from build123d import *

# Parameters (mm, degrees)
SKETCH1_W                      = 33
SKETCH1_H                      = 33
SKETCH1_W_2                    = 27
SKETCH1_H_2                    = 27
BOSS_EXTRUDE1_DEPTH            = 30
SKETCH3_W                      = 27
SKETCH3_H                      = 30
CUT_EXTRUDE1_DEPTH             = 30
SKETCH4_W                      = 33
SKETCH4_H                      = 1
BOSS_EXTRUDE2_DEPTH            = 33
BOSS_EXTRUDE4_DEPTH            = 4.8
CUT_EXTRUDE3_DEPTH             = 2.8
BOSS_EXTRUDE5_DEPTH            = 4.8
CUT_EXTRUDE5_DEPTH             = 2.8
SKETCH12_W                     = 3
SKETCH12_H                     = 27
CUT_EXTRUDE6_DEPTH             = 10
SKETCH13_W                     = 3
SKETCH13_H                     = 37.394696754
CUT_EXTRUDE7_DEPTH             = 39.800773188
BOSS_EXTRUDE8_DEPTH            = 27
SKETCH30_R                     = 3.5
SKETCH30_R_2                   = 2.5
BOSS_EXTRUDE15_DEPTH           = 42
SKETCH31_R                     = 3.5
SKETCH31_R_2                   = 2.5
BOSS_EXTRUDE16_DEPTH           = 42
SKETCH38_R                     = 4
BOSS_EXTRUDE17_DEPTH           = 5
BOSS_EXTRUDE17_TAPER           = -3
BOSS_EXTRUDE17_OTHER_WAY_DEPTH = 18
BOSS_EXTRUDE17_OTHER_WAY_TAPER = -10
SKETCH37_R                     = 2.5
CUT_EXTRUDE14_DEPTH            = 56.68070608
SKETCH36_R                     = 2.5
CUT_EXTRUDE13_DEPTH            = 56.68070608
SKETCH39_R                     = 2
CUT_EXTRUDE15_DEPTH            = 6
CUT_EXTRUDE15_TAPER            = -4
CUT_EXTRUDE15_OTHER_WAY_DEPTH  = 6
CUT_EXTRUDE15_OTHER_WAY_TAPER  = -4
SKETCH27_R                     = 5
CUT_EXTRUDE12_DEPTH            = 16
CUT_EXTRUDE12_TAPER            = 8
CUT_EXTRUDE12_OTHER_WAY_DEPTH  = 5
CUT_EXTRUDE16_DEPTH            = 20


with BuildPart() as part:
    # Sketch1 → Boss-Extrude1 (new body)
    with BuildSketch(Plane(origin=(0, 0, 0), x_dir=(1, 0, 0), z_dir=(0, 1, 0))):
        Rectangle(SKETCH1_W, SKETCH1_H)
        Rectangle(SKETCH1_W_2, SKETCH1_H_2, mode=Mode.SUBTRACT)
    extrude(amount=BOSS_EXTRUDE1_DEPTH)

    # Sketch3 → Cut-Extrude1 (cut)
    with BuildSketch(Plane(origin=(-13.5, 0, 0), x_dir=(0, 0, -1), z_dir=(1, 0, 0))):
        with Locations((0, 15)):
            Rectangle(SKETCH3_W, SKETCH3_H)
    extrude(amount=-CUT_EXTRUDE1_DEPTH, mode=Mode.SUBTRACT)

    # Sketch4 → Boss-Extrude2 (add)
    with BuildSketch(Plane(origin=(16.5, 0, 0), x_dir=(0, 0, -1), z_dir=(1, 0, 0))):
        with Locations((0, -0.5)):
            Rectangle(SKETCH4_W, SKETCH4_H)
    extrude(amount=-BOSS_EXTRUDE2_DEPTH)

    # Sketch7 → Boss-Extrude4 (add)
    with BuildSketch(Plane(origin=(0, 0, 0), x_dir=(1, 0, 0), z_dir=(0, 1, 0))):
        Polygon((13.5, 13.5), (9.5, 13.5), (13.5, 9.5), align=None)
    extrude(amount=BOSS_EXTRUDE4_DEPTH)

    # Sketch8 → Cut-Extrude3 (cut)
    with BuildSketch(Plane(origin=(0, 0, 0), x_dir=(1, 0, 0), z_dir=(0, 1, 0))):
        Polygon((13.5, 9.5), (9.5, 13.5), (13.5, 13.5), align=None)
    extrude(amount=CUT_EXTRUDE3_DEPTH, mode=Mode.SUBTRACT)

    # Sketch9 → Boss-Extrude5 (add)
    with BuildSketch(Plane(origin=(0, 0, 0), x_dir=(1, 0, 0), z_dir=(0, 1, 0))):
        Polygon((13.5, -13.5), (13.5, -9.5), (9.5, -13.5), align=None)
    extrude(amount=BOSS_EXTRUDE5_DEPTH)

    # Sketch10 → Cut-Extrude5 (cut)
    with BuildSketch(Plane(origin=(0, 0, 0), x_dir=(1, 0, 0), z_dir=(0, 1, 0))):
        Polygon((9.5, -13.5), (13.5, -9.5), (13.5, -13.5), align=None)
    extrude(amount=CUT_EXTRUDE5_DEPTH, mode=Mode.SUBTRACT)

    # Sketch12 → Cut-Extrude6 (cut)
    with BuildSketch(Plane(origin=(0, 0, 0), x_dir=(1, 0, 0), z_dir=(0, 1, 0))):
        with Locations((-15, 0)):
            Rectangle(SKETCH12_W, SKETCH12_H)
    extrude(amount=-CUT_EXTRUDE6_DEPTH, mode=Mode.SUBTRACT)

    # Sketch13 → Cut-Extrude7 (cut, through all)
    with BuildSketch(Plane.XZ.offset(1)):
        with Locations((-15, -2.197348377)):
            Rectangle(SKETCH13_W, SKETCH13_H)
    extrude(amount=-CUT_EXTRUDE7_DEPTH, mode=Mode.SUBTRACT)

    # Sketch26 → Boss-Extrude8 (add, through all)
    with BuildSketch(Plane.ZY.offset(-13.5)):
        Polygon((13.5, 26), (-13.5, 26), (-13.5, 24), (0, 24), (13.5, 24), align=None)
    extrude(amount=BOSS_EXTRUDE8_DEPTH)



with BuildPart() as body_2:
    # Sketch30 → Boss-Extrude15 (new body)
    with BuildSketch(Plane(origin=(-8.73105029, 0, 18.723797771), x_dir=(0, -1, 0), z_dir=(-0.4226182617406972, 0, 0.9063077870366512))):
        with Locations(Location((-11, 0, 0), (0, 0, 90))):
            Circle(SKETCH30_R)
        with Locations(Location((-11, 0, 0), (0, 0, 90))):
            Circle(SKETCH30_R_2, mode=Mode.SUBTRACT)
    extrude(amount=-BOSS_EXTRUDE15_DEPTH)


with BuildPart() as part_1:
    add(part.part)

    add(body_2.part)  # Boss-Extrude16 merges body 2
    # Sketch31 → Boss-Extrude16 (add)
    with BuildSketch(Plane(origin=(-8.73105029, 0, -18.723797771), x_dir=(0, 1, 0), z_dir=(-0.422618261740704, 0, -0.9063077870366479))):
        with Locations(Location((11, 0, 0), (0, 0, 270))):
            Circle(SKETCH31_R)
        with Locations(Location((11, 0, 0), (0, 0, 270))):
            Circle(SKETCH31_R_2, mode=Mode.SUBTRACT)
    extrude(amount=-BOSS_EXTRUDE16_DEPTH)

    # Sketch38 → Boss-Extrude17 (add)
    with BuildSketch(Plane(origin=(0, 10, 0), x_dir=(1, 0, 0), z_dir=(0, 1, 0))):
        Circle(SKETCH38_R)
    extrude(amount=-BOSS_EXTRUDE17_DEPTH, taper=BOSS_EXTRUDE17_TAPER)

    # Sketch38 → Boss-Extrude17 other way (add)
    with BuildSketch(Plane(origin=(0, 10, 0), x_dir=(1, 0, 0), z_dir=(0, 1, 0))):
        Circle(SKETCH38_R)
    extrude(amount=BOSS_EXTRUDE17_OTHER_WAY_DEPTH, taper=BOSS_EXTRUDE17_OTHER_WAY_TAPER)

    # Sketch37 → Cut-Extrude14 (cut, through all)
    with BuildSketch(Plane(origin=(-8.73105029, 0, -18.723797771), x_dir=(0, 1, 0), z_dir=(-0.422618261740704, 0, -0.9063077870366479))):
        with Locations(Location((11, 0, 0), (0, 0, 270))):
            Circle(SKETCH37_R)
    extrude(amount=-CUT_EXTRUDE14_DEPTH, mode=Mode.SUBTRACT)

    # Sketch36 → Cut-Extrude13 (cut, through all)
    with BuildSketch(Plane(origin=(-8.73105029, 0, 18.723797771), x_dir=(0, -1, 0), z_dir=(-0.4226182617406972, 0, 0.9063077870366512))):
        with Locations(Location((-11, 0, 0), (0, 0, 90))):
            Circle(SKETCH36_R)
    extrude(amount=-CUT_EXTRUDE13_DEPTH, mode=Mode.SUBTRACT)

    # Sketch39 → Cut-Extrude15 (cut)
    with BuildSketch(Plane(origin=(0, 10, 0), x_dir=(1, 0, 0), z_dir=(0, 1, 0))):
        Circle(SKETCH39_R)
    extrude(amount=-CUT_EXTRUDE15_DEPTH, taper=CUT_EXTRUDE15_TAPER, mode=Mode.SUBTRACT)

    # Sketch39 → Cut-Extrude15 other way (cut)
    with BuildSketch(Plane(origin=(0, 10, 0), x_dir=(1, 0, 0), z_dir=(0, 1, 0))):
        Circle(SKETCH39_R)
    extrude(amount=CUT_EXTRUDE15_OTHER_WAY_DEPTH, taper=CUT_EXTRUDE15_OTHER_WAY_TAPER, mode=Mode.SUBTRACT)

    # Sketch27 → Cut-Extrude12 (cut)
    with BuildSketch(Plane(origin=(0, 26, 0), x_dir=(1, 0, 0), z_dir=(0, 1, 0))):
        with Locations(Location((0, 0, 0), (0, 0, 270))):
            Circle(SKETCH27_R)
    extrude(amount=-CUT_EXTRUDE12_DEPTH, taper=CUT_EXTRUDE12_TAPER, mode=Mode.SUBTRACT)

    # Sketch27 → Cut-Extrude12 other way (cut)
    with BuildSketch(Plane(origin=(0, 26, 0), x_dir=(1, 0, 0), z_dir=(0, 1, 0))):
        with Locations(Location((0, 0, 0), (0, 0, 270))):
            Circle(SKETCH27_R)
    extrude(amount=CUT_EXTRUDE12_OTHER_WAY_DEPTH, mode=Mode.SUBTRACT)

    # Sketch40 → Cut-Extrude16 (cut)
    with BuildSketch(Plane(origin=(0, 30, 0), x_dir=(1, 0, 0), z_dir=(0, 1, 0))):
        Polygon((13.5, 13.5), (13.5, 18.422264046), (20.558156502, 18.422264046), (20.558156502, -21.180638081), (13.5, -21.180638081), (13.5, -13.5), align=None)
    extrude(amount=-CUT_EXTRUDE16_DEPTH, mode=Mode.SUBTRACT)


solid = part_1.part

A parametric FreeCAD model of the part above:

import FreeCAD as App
import Part
import Sketcher
from FreeCAD import Vector
Q = App.Units.Quantity


def add_polygon(sketch, points):
    """Adds a closed chain of lines whose ends are joined by coincident constraints."""
    first, n = sketch.GeometryCount, len(points)
    for a, b in zip(points, points[1:] + points[:1]):
        sketch.addGeometry(Part.LineSegment(App.Vector(*a, 0), App.Vector(*b, 0)), False)
    for i in range(n):
        sketch.addConstraint(Sketcher.Constraint("Coincident", first + i, 2, first + (i + 1) % n, 1))

doc = App.newDocument("Part")
body = doc.addObject("PartDesign::Body", "Body")

# Sketch on XZ plane
sketch1 = body.newObject("Sketcher::SketchObject", "Sketch")
sketch1.AttachmentSupport = (doc.getObject("XZ_Plane"), [""])
sketch1.MapMode = "FlatFace"
add_polygon(sketch1, [(-16, -16), (-16, 16), (16, 16), (16, -16)])  # lines 0-3
add_polygon(sketch1, [(14, 14), (-14, 14), (-14, -14), (14, -14)])  # lines 4-7
sketch1.addConstraint(Sketcher.Constraint("Vertical", 0))
sketch1.addConstraint(Sketcher.Constraint("Horizontal", 1))
sketch1.addConstraint(Sketcher.Constraint("Vertical", 2))
sketch1.addConstraint(Sketcher.Constraint("Horizontal", 3))
sketch1.addConstraint(Sketcher.Constraint("Horizontal", 4))
sketch1.addConstraint(Sketcher.Constraint("Vertical", 5))
sketch1.addConstraint(Sketcher.Constraint("Horizontal", 6))
sketch1.addConstraint(Sketcher.Constraint("Vertical", 7))
sketch1.addConstraint(Sketcher.Constraint("Symmetric", 0, 2, 2, 2, -1, 1))
sketch1.addConstraint(Sketcher.Constraint("Symmetric", 4, 2, 6, 2, -1, 1))
sketch1.addConstraint(Sketcher.Constraint("Equal", 3, 0))
sketch1.addConstraint(Sketcher.Constraint("Equal", 6, 5))
sketch1.addConstraint(Sketcher.Constraint("DistanceX", 1, 1, 1, 2, Q("33 mm")))
sketch1.addConstraint(Sketcher.Constraint("DistanceX", 4, 2, 4, 1, Q("27 mm")))
pad1 = body.newObject("PartDesign::Pad", "Pad")
pad1.Profile = sketch1
pad1.Length = 30
pad1.Reversed = True

# Sketch on YZ plane
sketch2 = body.newObject("Sketcher::SketchObject", "Sketch001")
sketch2.AttachmentSupport = (doc.getObject("YZ_Plane"), [""])
sketch2.MapMode = "FlatFace"
sketch2.AttachmentOffset = App.Placement(Vector(0, 0, -13.5), App.Rotation())
add_polygon(sketch2, [(30, 14), (0, 14), (0, -14), (30, -14)])  # lines 0-3
sketch2.addConstraint(Sketcher.Constraint("Horizontal", 0))
sketch2.addConstraint(Sketcher.Constraint("Vertical", 1))
sketch2.addConstraint(Sketcher.Constraint("Horizontal", 2))
sketch2.addConstraint(Sketcher.Constraint("Vertical", 3))
sketch2.addConstraint(Sketcher.Constraint("Symmetric", 0, 2, 1, 2, -1, 1))
sketch2.addConstraint(Sketcher.Constraint("DistanceX", 0, 2, 0, 1, Q("30 mm")))
sketch2.addConstraint(Sketcher.Constraint("DistanceY", 1, 2, 1, 1, Q("27 mm")))
pocket1 = body.newObject("PartDesign::Pocket", "Pocket")
pocket1.Profile = sketch2
pocket1.Length = 30

# Sketch on YZ plane
sketch3 = body.newObject("Sketcher::SketchObject", "Sketch002")
sketch3.AttachmentSupport = (doc.getObject("YZ_Plane"), [""])
sketch3.MapMode = "FlatFace"
sketch3.AttachmentOffset = App.Placement(Vector(0, 0, 16.5), App.Rotation())
add_polygon(sketch3, [(0, 16.5), (-1, 16.5), (-1, -16.5), (0, -16.5)])  # lines 0-3
sketch3.addConstraint(Sketcher.Constraint("Horizontal", 0))
sketch3.addConstraint(Sketcher.Constraint("Vertical", 1))
sketch3.addConstraint(Sketcher.Constraint("Horizontal", 2))
sketch3.addConstraint(Sketcher.Constraint("Vertical", 3))
sketch3.addConstraint(Sketcher.Constraint("Symmetric", 2, 2, 3, 2, -1, 1))
sketch3.addConstraint(Sketcher.Constraint("DistanceX", 0, 2, 0, 1, Q("1 mm")))
sketch3.addConstraint(Sketcher.Constraint("DistanceY", 1, 2, 1, 1, Q("33 mm")))
pad2 = body.newObject("PartDesign::Pad", "Pad001")
pad2.Profile = sketch3
pad2.Length = 33
pad2.Reversed = True

# Sketch on XZ plane
sketch4 = body.newObject("Sketcher::SketchObject", "Sketch003")
sketch4.AttachmentSupport = (doc.getObject("XZ_Plane"), [""])
sketch4.MapMode = "FlatFace"
add_polygon(sketch4, [(13.5, -13.5), (9.5, -13.5), (13.5, -9.5)])  # lines 0-2
sketch4.addConstraint(Sketcher.Constraint("Horizontal", 0))
sketch4.addConstraint(Sketcher.Constraint("Vertical", 2))
sketch4.addConstraint(Sketcher.Constraint("Equal", 0, 2))
sketch4.addConstraint(Sketcher.Constraint("DistanceX", 0, 2, 0, 1, Q("4 mm")))
sketch4.addConstraint(Sketcher.Constraint("DistanceX", -1, 1, 0, 2, Q("9.5 mm")))
sketch4.addConstraint(Sketcher.Constraint("DistanceY", 0, 2, -1, 1, Q("13.5 mm")))
pad3 = body.newObject("PartDesign::Pad", "Pad002")
pad3.Profile = sketch4
pad3.Length = 4.8
pad3.Reversed = True

# Sketch on XZ plane
sketch5 = body.newObject("Sketcher::SketchObject", "Sketch004")
sketch5.AttachmentSupport = (doc.getObject("XZ_Plane"), [""])
sketch5.MapMode = "FlatFace"
add_polygon(sketch5, [(9.5, -13.5), (13.5, -9.5), (13.5, -13.5)])  # lines 0-2
sketch5.addConstraint(Sketcher.Constraint("Vertical", 1))
sketch5.addConstraint(Sketcher.Constraint("Horizontal", 2))
sketch5.addConstraint(Sketcher.Constraint("Equal", 2, 1))
sketch5.addConstraint(Sketcher.Constraint("DistanceX", 2, 2, 2, 1, Q("4 mm")))
sketch5.addConstraint(Sketcher.Constraint("DistanceX", -1, 1, 0, 2, Q("13.5 mm")))
sketch5.addConstraint(Sketcher.Constraint("DistanceY", 0, 2, -1, 1, Q("9.5 mm")))
pocket2 = body.newObject("PartDesign::Pocket", "Pocket001")
pocket2.Profile = sketch5
pocket2.Length = 2.8

# Sketch on XZ plane
sketch6 = body.newObject("Sketcher::SketchObject", "Sketch005")
sketch6.AttachmentSupport = (doc.getObject("XZ_Plane"), [""])
sketch6.MapMode = "FlatFace"
add_polygon(sketch6, [(13.5, 13.5), (13.5, 9.5), (9.5, 13.5)])  # lines 0-2
sketch6.addConstraint(Sketcher.Constraint("Vertical", 0))
sketch6.addConstraint(Sketcher.Constraint("Horizontal", 2))
sketch6.addConstraint(Sketcher.Constraint("Equal", 2, 0))
sketch6.addConstraint(Sketcher.Constraint("DistanceX", 2, 1, 2, 2, Q("4 mm")))
sketch6.addConstraint(Sketcher.Constraint("DistanceX", -1, 1, 0, 2, Q("13.5 mm")))
sketch6.addConstraint(Sketcher.Constraint("DistanceY", -1, 1, 0, 2, Q("9.5 mm")))
pad4 = body.newObject("PartDesign::Pad", "Pad003")
pad4.Profile = sketch6
pad4.Length = 4.8
pad4.Reversed = True

# Sketch on XZ plane
sketch7 = body.newObject("Sketcher::SketchObject", "Sketch006")
sketch7.AttachmentSupport = (doc.getObject("XZ_Plane"), [""])
sketch7.MapMode = "FlatFace"
add_polygon(sketch7, [(13.5, 9.5), (9.5, 13.5), (13.5, 13.5)])  # lines 0-2
sketch7.addConstraint(Sketcher.Constraint("Horizontal", 1))
sketch7.addConstraint(Sketcher.Constraint("Vertical", 2))
sketch7.addConstraint(Sketcher.Constraint("Equal", 1, 2))
sketch7.addConstraint(Sketcher.Constraint("DistanceX", 1, 1, 1, 2, Q("4 mm")))
sketch7.addConstraint(Sketcher.Constraint("DistanceX", -1, 1, 0, 2, Q("9.5 mm")))
sketch7.addConstraint(Sketcher.Constraint("DistanceY", -1, 1, 0, 2, Q("13.5 mm")))
pocket3 = body.newObject("PartDesign::Pocket", "Pocket002")
pocket3.Profile = sketch7
pocket3.Length = 2.8

# Sketch on XZ plane
sketch8 = body.newObject("Sketcher::SketchObject", "Sketch007")
sketch8.AttachmentSupport = (doc.getObject("XZ_Plane"), [""])
sketch8.MapMode = "FlatFace"
add_polygon(sketch8, [(-16.5, -13.5), (-16.5, 13.5), (-13.5, 13.5), (-13.5, -13.5)])  # lines 0-3
sketch8.addConstraint(Sketcher.Constraint("Vertical", 0))
sketch8.addConstraint(Sketcher.Constraint("Horizontal", 1))
sketch8.addConstraint(Sketcher.Constraint("Vertical", 2))
sketch8.addConstraint(Sketcher.Constraint("Horizontal", 3))
sketch8.addConstraint(Sketcher.Constraint("DistanceX", 1, 1, 1, 2, Q("3 mm")))
sketch8.addConstraint(Sketcher.Constraint("DistanceY", 0, 1, 0, 2, Q("27 mm")))
sketch8.addConstraint(Sketcher.Constraint("DistanceX", 0, 2, -1, 1, Q("16.5 mm")))
sketch8.addConstraint(Sketcher.Constraint("DistanceY", -1, 1, 0, 2, Q("13.5 mm")))
pocket4 = body.newObject("PartDesign::Pocket", "Pocket003")
pocket4.Profile = sketch8
pocket4.Length = 10
pocket4.Reversed = True

# Sketch on XZ plane
sketch9 = body.newObject("Sketcher::SketchObject", "Sketch008")
sketch9.AttachmentSupport = (doc.getObject("XZ_Plane"), [""])
sketch9.MapMode = "FlatFace"
sketch9.AttachmentOffset = App.Placement(Vector(0, 0, 1), App.Rotation())
add_polygon(sketch9, [(-16.5, 16.5), (-16.5, -20.9), (-13.5, -20.9), (-13.5, 16.5)])  # lines 0-3
sketch9.addConstraint(Sketcher.Constraint("Vertical", 0))
sketch9.addConstraint(Sketcher.Constraint("Horizontal", 1))
sketch9.addConstraint(Sketcher.Constraint("Vertical", 2))
sketch9.addConstraint(Sketcher.Constraint("Horizontal", 3))
sketch9.addConstraint(Sketcher.Constraint("DistanceX", 1, 1, 1, 2, Q("3 mm")))
sketch9.addConstraint(Sketcher.Constraint("DistanceX", 0, 2, -1, 1, Q("16.5 mm")))
sketch9.addConstraint(Sketcher.Constraint("DistanceY", -1, 1, 2, 2, Q("16.5 mm")))
sketch9.addConstraint(Sketcher.Constraint("DistanceY", 0, 2, 0, 1, Q("37.394697 mm")))
pocket5 = body.newObject("PartDesign::Pocket", "Pocket004")
pocket5.Profile = sketch9
pocket5.Type = "ThroughAll"

# Sketch on YZ plane
sketch10 = body.newObject("Sketcher::SketchObject", "Sketch009")
sketch10.AttachmentSupport = (doc.getObject("YZ_Plane"), [""])
sketch10.MapMode = "FlatFace"
sketch10.AttachmentOffset = App.Placement(Vector(0, 0, 13.5), App.Rotation())
add_polygon(sketch10, [(26, 13.5), (26, -13.5), (24, -13.5), (24, 13.5)])  # lines 0-3
sketch10.addConstraint(Sketcher.Constraint("Vertical", 0))
sketch10.addConstraint(Sketcher.Constraint("Horizontal", 1))
sketch10.addConstraint(Sketcher.Constraint("Vertical", 2))
sketch10.addConstraint(Sketcher.Constraint("Horizontal", 3))
sketch10.addConstraint(Sketcher.Constraint("DistanceX", 1, 2, 1, 1, Q("2 mm")))
sketch10.addConstraint(Sketcher.Constraint("DistanceY", 0, 2, 0, 1, Q("27 mm")))
sketch10.addConstraint(Sketcher.Constraint("DistanceX", -1, 1, 0, 2, Q("26 mm")))
sketch10.addConstraint(Sketcher.Constraint("DistanceY", 0, 2, -1, 1, Q("13.5 mm")))
pad5 = body.newObject("PartDesign::Pad", "Pad004")
pad5.Profile = sketch10
pad5.Length = 27
pad5.Reversed = True
body2 = doc.addObject("PartDesign::Body", "Body001")

# Sketch on an angled plane
sketch11 = body2.newObject("Sketcher::SketchObject", "Sketch010")
sketch11.Placement = App.Placement(Vector(-8.73105, 0, 18.723798), App.Rotation(Vector(0, -1, 0), Vector(0.906307787, 0, 0.422618262), Vector(-0.422618262, 0, 0.906307787), "ZXY"))
sketch11.addGeometry(Part.Circle(Vector(-11, 0, 0), Vector(0, 0, 1), 3.5), False)
sketch11.addGeometry(Part.Circle(Vector(-11, 0, 0), Vector(0, 0, 1), 2.5), False)
sketch11.addConstraint(Sketcher.Constraint("Coincident", 1, 3, 0, 3))
sketch11.addConstraint(Sketcher.Constraint("PointOnObject", 0, 3, -1))
sketch11.addConstraint(Sketcher.Constraint("Diameter", 0, Q("7 mm")))
sketch11.addConstraint(Sketcher.Constraint("Diameter", 1, Q("5 mm")))
sketch11.addConstraint(Sketcher.Constraint("DistanceX", 0, 3, -1, 1, Q("11 mm")))
pad6 = body2.newObject("PartDesign::Pad", "Pad005")
pad6.Profile = sketch11
pad6.Length = 42
pad6.Reversed = True
doc.recompute()

boolean = body.newObject("PartDesign::Boolean", "Boolean")
boolean.Type = "Fuse"
boolean.addObjects([body2])

# Sketch on an angled plane
sketch12 = body.newObject("Sketcher::SketchObject", "Sketch011")
sketch12.Placement = App.Placement(Vector(-8.73105, 0, -18.723798), App.Rotation(Vector(0, 1, 0), Vector(0.906307787, 0, -0.422618262), Vector(-0.422618262, 0, -0.906307787), "ZXY"))
sketch12.addGeometry(Part.Circle(Vector(11, 0, 0), Vector(0, 0, 1), 3.5), False)
sketch12.addGeometry(Part.Circle(Vector(11, 0, 0), Vector(0, 0, 1), 2.5), False)
sketch12.addConstraint(Sketcher.Constraint("Coincident", 1, 3, 0, 3))
sketch12.addConstraint(Sketcher.Constraint("PointOnObject", 0, 3, -1))
sketch12.addConstraint(Sketcher.Constraint("Diameter", 0, Q("7 mm")))
sketch12.addConstraint(Sketcher.Constraint("Diameter", 1, Q("5 mm")))
sketch12.addConstraint(Sketcher.Constraint("DistanceX", -1, 1, 0, 3, Q("11 mm")))
pad7 = body.newObject("PartDesign::Pad", "Pad006")
pad7.Profile = sketch12
pad7.Length = 42
pad7.Reversed = True

# Sketch on XZ plane
sketch13 = body.newObject("Sketcher::SketchObject", "Sketch012")
sketch13.AttachmentSupport = (doc.getObject("XZ_Plane"), [""])
sketch13.MapMode = "FlatFace"
sketch13.AttachmentOffset = App.Placement(Vector(0, 0, -10), App.Rotation())
sketch13.addGeometry(Part.Circle(Vector(0, 0, 0), Vector(0, 0, 1), 4), False)
sketch13.addConstraint(Sketcher.Constraint("Coincident", 0, 3, -1, 1))
sketch13.addConstraint(Sketcher.Constraint("Diameter", 0, Q("8 mm")))
pad8 = body.newObject("PartDesign::Pad", "Pad007")
pad8.Profile = sketch13
pad8.Length = 5
pad8.TaperAngle = 3

# Sketch on XZ plane
sketch14 = body.newObject("Sketcher::SketchObject", "Sketch013")
sketch14.AttachmentSupport = (doc.getObject("XZ_Plane"), [""])
sketch14.MapMode = "FlatFace"
sketch14.AttachmentOffset = App.Placement(Vector(0, 0, -10), App.Rotation())
sketch14.addGeometry(Part.Circle(Vector(0, 0, 0), Vector(0, 0, 1), 4), False)
sketch14.addConstraint(Sketcher.Constraint("Coincident", 0, 3, -1, 1))
sketch14.addConstraint(Sketcher.Constraint("Diameter", 0, Q("8 mm")))
pad9 = body.newObject("PartDesign::Pad", "Pad008")
pad9.Profile = sketch14
pad9.Length = 18
pad9.Reversed = True
pad9.TaperAngle = 10

# Sketch on an angled plane
sketch15 = body.newObject("Sketcher::SketchObject", "Sketch014")
sketch15.Placement = App.Placement(Vector(-8.73105, 0, -18.723798), App.Rotation(Vector(0, 1, 0), Vector(0.906307787, 0, -0.422618262), Vector(-0.422618262, 0, -0.906307787), "ZXY"))
sketch15.addGeometry(Part.Circle(Vector(11, 0, 0), Vector(0, 0, 1), 2.5), False)
sketch15.addConstraint(Sketcher.Constraint("PointOnObject", 0, 3, -1))
sketch15.addConstraint(Sketcher.Constraint("Diameter", 0, Q("5 mm")))
sketch15.addConstraint(Sketcher.Constraint("DistanceX", -1, 1, 0, 3, Q("11 mm")))
pocket6 = body.newObject("PartDesign::Pocket", "Pocket005")
pocket6.Profile = sketch15
pocket6.Type = "ThroughAll"

# Sketch on an angled plane
sketch16 = body.newObject("Sketcher::SketchObject", "Sketch015")
sketch16.Placement = App.Placement(Vector(-8.73105, 0, 18.723798), App.Rotation(Vector(0, -1, 0), Vector(0.906307787, 0, 0.422618262), Vector(-0.422618262, 0, 0.906307787), "ZXY"))
sketch16.addGeometry(Part.Circle(Vector(-11, 0, 0), Vector(0, 0, 1), 2.5), False)
sketch16.addConstraint(Sketcher.Constraint("PointOnObject", 0, 3, -1))
sketch16.addConstraint(Sketcher.Constraint("Diameter", 0, Q("5 mm")))
sketch16.addConstraint(Sketcher.Constraint("DistanceX", 0, 3, -1, 1, Q("11 mm")))
pocket7 = body.newObject("PartDesign::Pocket", "Pocket006")
pocket7.Profile = sketch16
pocket7.Type = "ThroughAll"

# Sketch on XZ plane
sketch17 = body.newObject("Sketcher::SketchObject", "Sketch016")
sketch17.AttachmentSupport = (doc.getObject("XZ_Plane"), [""])
sketch17.MapMode = "FlatFace"
sketch17.AttachmentOffset = App.Placement(Vector(0, 0, -10), App.Rotation())
sketch17.addGeometry(Part.Circle(Vector(0, 0, 0), Vector(0, 0, 1), 2), False)
sketch17.addConstraint(Sketcher.Constraint("Coincident", 0, 3, -1, 1))
sketch17.addConstraint(Sketcher.Constraint("Diameter", 0, Q("4 mm")))
pocket8 = body.newObject("PartDesign::Pocket", "Pocket007")
pocket8.Profile = sketch17
pocket8.Length = 6
pocket8.Reversed = True
pocket8.TaperAngle = 4

# Sketch on XZ plane
sketch18 = body.newObject("Sketcher::SketchObject", "Sketch017")
sketch18.AttachmentSupport = (doc.getObject("XZ_Plane"), [""])
sketch18.MapMode = "FlatFace"
sketch18.AttachmentOffset = App.Placement(Vector(0, 0, -10), App.Rotation())
sketch18.addGeometry(Part.Circle(Vector(0, 0, 0), Vector(0, 0, 1), 2), False)
sketch18.addConstraint(Sketcher.Constraint("Coincident", 0, 3, -1, 1))
sketch18.addConstraint(Sketcher.Constraint("Diameter", 0, Q("4 mm")))
pocket9 = body.newObject("PartDesign::Pocket", "Pocket008")
pocket9.Profile = sketch18
pocket9.Length = 6
pocket9.TaperAngle = 4

# Sketch on XZ plane
sketch19 = body.newObject("Sketcher::SketchObject", "Sketch018")
sketch19.AttachmentSupport = (doc.getObject("XZ_Plane"), [""])
sketch19.MapMode = "FlatFace"
sketch19.AttachmentOffset = App.Placement(Vector(0, 0, -26), App.Rotation())
sketch19.addGeometry(Part.Circle(Vector(0, 0, 0), Vector(0, 0, 1), 5), False)
sketch19.addConstraint(Sketcher.Constraint("Coincident", 0, 3, -1, 1))
sketch19.addConstraint(Sketcher.Constraint("Diameter", 0, Q("10 mm")))
pocket10 = body.newObject("PartDesign::Pocket", "Pocket009")
pocket10.Profile = sketch19
pocket10.Length = 16
pocket10.Reversed = True
pocket10.TaperAngle = -8

# Sketch on XZ plane
sketch20 = body.newObject("Sketcher::SketchObject", "Sketch019")
sketch20.AttachmentSupport = (doc.getObject("XZ_Plane"), [""])
sketch20.MapMode = "FlatFace"
sketch20.AttachmentOffset = App.Placement(Vector(0, 0, -26), App.Rotation())
sketch20.addGeometry(Part.Circle(Vector(0, 0, 0), Vector(0, 0, 1), 5), False)
sketch20.addConstraint(Sketcher.Constraint("Coincident", 0, 3, -1, 1))
sketch20.addConstraint(Sketcher.Constraint("Diameter", 0, Q("10 mm")))
pocket11 = body.newObject("PartDesign::Pocket", "Pocket010")
pocket11.Profile = sketch20
pocket11.Length = 5

# Sketch on XZ plane
sketch21 = body.newObject("Sketcher::SketchObject", "Sketch020")
sketch21.AttachmentSupport = (doc.getObject("XZ_Plane"), [""])
sketch21.MapMode = "FlatFace"
sketch21.AttachmentOffset = App.Placement(Vector(0, 0, -30), App.Rotation())
add_polygon(sketch21, [(14, -18), (14, 21), (21, 21), (21, -18)])  # lines 0-3
sketch21.addConstraint(Sketcher.Constraint("Vertical", 0))
sketch21.addConstraint(Sketcher.Constraint("Horizontal", 1))
sketch21.addConstraint(Sketcher.Constraint("Vertical", 2))
sketch21.addConstraint(Sketcher.Constraint("Horizontal", 3))
sketch21.addConstraint(Sketcher.Constraint("DistanceX", -1, 1, 0, 2, Q("13.5 mm")))
sketch21.addConstraint(Sketcher.Constraint("DistanceX", 1, 1, 1, 2, Q("7.058157 mm")))
sketch21.addConstraint(Sketcher.Constraint("DistanceY", 0, 1, 0, 2, Q("39.602902 mm")))
sketch21.addConstraint(Sketcher.Constraint("DistanceY", -1, 1, 0, 2, Q("21.180638 mm")))
pocket12 = body.newObject("PartDesign::Pocket", "Pocket011")
pocket12.Profile = sketch21
pocket12.Length = 20
pocket12.Reversed = True

doc.recompute()
